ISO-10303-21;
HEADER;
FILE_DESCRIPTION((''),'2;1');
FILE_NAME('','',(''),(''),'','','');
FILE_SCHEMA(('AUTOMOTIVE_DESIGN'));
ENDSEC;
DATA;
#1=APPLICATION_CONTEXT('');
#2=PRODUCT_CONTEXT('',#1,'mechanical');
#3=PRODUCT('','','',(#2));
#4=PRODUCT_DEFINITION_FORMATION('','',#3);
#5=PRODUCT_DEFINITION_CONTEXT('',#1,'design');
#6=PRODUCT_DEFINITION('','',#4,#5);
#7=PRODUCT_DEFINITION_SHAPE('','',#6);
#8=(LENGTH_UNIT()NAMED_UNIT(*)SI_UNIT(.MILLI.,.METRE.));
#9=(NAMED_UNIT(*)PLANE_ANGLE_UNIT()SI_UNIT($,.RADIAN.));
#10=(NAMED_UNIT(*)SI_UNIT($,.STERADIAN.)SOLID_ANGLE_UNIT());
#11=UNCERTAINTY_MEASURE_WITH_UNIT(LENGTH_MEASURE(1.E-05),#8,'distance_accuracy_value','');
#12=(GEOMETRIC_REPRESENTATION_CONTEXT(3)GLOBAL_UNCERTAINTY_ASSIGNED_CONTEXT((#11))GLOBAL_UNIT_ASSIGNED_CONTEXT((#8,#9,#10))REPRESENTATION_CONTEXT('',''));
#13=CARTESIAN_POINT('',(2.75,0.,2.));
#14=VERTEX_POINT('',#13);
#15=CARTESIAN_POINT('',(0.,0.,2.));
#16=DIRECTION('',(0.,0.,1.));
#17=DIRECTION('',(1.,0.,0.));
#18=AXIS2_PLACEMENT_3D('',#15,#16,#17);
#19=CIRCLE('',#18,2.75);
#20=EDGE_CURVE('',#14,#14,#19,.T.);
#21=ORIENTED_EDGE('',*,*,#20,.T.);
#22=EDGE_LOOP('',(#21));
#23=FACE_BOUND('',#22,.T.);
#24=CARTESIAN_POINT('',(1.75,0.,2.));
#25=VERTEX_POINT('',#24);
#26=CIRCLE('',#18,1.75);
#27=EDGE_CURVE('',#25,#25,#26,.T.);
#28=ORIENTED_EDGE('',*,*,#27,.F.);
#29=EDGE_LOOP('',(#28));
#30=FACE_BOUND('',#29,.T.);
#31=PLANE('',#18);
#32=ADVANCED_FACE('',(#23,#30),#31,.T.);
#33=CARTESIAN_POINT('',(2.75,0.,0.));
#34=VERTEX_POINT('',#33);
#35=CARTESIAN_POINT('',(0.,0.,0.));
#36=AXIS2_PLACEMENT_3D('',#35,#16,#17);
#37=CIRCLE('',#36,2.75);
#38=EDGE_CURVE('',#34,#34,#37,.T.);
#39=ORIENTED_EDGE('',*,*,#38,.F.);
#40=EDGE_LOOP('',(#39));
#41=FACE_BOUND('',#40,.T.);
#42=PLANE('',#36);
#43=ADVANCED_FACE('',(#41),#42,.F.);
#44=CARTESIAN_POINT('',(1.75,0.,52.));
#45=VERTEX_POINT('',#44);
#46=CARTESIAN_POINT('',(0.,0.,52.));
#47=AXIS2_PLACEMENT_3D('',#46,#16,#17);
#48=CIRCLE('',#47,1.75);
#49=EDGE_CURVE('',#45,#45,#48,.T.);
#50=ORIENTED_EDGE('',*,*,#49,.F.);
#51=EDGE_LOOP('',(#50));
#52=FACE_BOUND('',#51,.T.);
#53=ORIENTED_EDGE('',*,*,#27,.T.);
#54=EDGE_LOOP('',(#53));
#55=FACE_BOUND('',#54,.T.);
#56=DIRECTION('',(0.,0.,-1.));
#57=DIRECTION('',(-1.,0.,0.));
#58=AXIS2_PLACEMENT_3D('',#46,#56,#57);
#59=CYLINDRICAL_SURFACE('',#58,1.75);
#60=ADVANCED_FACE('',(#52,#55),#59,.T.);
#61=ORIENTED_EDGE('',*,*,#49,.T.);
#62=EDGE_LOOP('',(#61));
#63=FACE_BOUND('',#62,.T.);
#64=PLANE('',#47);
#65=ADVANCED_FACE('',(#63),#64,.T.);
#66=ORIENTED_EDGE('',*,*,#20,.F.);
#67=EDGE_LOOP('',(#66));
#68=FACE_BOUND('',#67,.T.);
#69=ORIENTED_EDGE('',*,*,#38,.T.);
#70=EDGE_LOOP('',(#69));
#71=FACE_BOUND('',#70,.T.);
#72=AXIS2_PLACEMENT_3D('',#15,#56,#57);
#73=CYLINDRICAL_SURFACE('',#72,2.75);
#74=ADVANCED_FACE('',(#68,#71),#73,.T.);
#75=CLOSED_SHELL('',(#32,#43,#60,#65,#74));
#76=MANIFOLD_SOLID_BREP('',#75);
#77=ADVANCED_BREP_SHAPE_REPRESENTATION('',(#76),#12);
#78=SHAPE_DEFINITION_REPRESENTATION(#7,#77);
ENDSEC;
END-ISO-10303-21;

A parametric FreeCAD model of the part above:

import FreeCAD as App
import Part
import Sketcher

V = App.Vector
Q = App.Units.Quantity

doc = App.newDocument("Part")
params = doc.addObject("Spreadsheet::Sheet", "Params")
for row, (alias, value) in enumerate([
    ("sketch1_diameter", "5.5 mm"),
    ("pad1_length", "2 mm"),
    ("sketch2_diameter", "3.5 mm"),
    ("pad2_length", "50 mm"),
], start=1):
    params.set(f"A{row}", alias)
    params.set(f"B{row}", "=" + value)
    params.setAlias(f"B{row}", alias)

body = doc.addObject("PartDesign::Body", "Body")

sketch1 = body.newObject("Sketcher::SketchObject", "Sketch")
sketch1.AttachmentSupport = (doc.getObject("XY_Plane"), [""])
sketch1.MapMode = "FlatFace"
sketch1.addGeometry(Part.Circle(V(0, 0, 0), V(0, 0, 1), 2.8), False)
sketch1.addConstraint([
    Sketcher.Constraint("Coincident", 0, 3, -1, 1),
    Sketcher.Constraint("Diameter", 0, Q("5.5 mm")),
])
sketch1.setExpression("Constraints[1]", "Params.sketch1_diameter")
pad1 = body.newObject("PartDesign::Pad", "Pad")
pad1.Profile = sketch1
pad1.setExpression("Length", "Params.pad1_length")

sketch2 = body.newObject("Sketcher::SketchObject", "Sketch001")
sketch2.AttachmentSupport = (doc.getObject("XY_Plane"), [""])
sketch2.MapMode = "FlatFace"
sketch2.AttachmentOffset = App.Placement(V(0, 0, 2), App.Rotation())
sketch2.addGeometry(Part.Circle(V(0, 0, 0), V(0, 0, 1), 1.8), False)
sketch2.addConstraint([
    Sketcher.Constraint("Coincident", 0, 3, -1, 1),
    Sketcher.Constraint("Diameter", 0, Q("3.5 mm")),
])
sketch2.setExpression("Constraints[1]", "Params.sketch2_diameter")
pad2 = body.newObject("PartDesign::Pad", "Pad001")
pad2.Profile = sketch2
pad2.setExpression("Length", "Params.pad2_length")

doc.recompute()
